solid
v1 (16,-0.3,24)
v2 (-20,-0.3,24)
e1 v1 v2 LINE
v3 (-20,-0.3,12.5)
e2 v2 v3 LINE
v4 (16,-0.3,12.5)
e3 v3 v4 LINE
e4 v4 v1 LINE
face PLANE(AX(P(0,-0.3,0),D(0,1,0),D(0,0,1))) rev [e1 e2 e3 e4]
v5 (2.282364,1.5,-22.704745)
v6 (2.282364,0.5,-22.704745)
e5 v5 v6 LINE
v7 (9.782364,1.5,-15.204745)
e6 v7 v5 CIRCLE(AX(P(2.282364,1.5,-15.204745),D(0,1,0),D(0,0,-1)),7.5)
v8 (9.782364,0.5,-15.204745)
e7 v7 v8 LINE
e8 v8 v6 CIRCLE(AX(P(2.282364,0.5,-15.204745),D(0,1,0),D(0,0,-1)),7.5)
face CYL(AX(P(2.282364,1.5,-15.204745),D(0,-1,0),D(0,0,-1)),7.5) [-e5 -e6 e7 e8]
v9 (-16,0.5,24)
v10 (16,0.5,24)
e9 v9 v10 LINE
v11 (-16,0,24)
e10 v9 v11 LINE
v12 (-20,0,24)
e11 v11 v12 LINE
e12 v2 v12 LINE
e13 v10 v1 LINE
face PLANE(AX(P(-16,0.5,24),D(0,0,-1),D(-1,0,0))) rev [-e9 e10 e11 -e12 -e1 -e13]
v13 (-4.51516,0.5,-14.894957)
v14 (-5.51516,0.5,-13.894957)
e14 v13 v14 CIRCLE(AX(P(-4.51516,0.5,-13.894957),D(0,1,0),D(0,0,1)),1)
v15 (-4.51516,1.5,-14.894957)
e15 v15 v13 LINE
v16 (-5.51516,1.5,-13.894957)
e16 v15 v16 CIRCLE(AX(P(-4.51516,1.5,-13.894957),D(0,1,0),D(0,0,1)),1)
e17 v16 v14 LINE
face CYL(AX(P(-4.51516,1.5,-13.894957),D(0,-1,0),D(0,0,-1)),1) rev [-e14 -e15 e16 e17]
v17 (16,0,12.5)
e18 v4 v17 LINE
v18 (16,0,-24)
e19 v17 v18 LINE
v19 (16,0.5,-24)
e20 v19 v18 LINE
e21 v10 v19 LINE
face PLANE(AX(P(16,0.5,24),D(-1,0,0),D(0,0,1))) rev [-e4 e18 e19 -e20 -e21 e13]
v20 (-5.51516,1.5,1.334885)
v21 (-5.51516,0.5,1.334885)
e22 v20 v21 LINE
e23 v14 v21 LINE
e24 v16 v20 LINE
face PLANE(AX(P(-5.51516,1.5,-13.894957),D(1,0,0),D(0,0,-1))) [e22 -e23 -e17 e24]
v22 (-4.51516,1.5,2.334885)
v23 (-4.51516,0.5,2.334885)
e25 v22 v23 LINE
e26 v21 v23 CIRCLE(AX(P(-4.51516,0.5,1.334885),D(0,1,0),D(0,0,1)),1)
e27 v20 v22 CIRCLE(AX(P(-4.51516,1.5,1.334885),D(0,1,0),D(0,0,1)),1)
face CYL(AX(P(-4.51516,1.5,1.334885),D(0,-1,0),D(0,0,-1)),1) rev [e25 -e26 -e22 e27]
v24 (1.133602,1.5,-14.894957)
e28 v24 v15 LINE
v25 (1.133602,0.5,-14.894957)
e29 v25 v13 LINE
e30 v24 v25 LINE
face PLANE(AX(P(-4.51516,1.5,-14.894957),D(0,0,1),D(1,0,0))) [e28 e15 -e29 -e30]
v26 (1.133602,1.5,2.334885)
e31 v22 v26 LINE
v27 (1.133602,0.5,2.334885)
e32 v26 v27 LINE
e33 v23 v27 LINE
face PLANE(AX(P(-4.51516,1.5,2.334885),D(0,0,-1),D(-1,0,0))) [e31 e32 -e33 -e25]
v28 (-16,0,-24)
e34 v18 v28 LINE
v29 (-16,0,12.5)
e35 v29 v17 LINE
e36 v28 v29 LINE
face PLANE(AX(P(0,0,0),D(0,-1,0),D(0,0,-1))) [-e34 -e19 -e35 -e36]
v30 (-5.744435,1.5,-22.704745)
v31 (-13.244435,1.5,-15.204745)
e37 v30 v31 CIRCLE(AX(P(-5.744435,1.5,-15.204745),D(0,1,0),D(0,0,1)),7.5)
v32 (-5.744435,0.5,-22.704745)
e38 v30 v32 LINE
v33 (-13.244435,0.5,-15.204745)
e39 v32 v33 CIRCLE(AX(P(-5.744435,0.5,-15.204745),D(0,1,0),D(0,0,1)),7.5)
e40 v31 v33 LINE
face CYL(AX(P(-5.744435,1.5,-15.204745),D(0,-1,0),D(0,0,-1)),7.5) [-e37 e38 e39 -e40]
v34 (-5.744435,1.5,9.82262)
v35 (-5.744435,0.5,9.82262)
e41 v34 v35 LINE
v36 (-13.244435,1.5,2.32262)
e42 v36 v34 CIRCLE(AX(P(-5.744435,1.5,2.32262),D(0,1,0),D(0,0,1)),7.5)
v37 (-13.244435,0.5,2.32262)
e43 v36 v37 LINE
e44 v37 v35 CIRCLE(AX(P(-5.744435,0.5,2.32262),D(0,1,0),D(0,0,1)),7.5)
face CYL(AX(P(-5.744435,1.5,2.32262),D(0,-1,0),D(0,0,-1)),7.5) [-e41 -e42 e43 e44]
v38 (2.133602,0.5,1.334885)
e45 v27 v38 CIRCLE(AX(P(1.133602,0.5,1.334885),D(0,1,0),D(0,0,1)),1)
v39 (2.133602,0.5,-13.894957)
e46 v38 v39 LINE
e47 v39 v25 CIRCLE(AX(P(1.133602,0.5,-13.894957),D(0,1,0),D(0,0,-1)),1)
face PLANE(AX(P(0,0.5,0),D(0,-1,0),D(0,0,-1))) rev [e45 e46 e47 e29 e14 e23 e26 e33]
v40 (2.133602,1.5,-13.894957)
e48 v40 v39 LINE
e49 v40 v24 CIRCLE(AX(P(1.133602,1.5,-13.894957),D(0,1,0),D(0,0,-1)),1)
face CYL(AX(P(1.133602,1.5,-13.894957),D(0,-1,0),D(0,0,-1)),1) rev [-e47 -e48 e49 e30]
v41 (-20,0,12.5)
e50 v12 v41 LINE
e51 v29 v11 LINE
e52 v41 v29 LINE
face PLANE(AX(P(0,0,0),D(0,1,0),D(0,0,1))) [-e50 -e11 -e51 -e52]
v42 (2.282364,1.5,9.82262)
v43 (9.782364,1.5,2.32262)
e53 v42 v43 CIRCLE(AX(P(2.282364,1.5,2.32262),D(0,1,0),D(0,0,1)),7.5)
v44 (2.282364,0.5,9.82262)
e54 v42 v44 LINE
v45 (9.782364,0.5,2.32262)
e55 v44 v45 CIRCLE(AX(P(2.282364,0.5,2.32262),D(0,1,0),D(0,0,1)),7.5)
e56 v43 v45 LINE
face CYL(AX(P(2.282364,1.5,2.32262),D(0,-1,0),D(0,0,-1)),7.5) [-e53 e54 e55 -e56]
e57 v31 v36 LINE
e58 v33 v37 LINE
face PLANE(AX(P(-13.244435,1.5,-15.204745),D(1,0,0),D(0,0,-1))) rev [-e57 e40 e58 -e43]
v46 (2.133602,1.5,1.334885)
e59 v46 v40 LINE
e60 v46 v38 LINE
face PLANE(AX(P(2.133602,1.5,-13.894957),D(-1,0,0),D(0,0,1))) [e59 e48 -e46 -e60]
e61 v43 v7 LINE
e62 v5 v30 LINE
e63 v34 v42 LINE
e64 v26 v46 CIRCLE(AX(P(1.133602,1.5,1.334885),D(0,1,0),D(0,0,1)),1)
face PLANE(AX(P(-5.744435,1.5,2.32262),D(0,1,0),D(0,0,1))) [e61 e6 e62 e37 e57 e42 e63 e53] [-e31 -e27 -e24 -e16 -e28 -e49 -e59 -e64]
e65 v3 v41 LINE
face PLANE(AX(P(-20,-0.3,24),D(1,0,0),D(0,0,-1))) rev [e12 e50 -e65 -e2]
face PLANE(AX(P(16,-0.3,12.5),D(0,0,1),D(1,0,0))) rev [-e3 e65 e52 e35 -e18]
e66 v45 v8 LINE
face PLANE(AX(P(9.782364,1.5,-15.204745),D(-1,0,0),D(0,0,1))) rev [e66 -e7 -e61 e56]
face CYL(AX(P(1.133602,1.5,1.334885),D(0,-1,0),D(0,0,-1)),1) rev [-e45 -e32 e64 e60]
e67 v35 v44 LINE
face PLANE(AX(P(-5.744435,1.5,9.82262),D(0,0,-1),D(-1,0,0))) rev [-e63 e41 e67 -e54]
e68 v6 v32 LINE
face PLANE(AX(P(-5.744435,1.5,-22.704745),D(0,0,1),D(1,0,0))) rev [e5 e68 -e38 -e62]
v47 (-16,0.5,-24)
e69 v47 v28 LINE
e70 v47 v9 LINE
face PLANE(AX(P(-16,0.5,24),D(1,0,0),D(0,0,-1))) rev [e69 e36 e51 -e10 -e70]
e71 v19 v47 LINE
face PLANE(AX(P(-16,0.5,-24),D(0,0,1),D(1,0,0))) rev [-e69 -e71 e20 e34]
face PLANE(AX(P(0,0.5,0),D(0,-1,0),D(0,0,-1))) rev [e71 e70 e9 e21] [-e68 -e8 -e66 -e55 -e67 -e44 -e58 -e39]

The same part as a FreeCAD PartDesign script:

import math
import FreeCAD as App
import Part
import Sketcher
Q = App.Units.Quantity

doc = App.newDocument("Part")
params = doc.addObject("Spreadsheet::Sheet", "Params")
for row, (alias, value) in enumerate([
    ("sketch1_width", "32 mm"),
    ("sketch1_height", "48 mm"),
    ("pad1_length", "0.5 mm"),
    ("sketch2_radius", "1 mm"),
    ("sketch2_radius2", "7.5 mm"),
    ("pad2_length", "1 mm"),
    ("sketch3_width", "36 mm"),
    ("sketch3_height", "11.5 mm"),
    ("pad3_length", "0.3 mm"),
], start=1):
    params.set(f"A{row}", alias)
    params.set(f"B{row}", "=" + value)
    params.setAlias(f"B{row}", alias)

body = doc.addObject("PartDesign::Body", "Body")

sketch1 = doc.addObject("Sketcher::SketchObject", "Sketch")
body.addObject(sketch1)
sketch1.AttachmentSupport = (doc.XZ_Plane, [""])
sketch1.MapMode = "FlatFace"
sketch1.addGeometry(Part.LineSegment(App.Vector(-16, -24, 0), App.Vector(-16, 24, 0)), False)
sketch1.addGeometry(Part.LineSegment(App.Vector(-16, 24, 0), App.Vector(16, 24, 0)), False)
sketch1.addGeometry(Part.LineSegment(App.Vector(16, 24, 0), App.Vector(16, -24, 0)), False)
sketch1.addGeometry(Part.LineSegment(App.Vector(16, -24, 0), App.Vector(-16, -24, 0)), False)
sketch1.addConstraint(Sketcher.Constraint("Coincident", 0, 2, 1, 1))
sketch1.addConstraint(Sketcher.Constraint("Coincident", 1, 2, 2, 1))
sketch1.addConstraint(Sketcher.Constraint("Coincident", 2, 2, 3, 1))
sketch1.addConstraint(Sketcher.Constraint("Coincident", 3, 2, 0, 1))
sketch1.addConstraint(Sketcher.Constraint("Vertical", 0))
sketch1.addConstraint(Sketcher.Constraint("Horizontal", 1))
sketch1.addConstraint(Sketcher.Constraint("Vertical", 2))
sketch1.addConstraint(Sketcher.Constraint("Horizontal", 3))
sketch1.addConstraint(Sketcher.Constraint("Symmetric", 0, 2, 2, 2, -1, 1))
sketch1.addConstraint(Sketcher.Constraint("DistanceX", 1, 1, 1, 2, Q("32 mm")))
sketch1.addConstraint(Sketcher.Constraint("DistanceY", 0, 1, 0, 2, Q("48 mm")))
sketch1.setExpression("Constraints[9]", "Params.sketch1_width")
sketch1.setExpression("Constraints[10]", "Params.sketch1_height")
pad1 = doc.addObject("PartDesign::Pad", "Pad")
body.addObject(pad1)
pad1.Profile = sketch1
pad1.setExpression("Length", "Params.pad1_length")
pad1.Reversed = True

sketch2 = doc.addObject("Sketcher::SketchObject", "Sketch001")
body.addObject(sketch2)
sketch2.AttachmentSupport = (doc.XZ_Plane, [""])
sketch2.MapMode = "FlatFace"
sketch2.AttachmentOffset = App.Placement(App.Vector(0, 0, -0.5), App.Rotation())
sketch2.addGeometry(Part.LineSegment(App.Vector(2.3, -22.7, 0), App.Vector(-5.7, -22.7, 0)), False)
sketch2.addGeometry(Part.ArcOfCircle(Part.Circle(App.Vector(-5.7, -15.2, 0), App.Vector(0, 0, 1), 7.5), math.radians(-180), math.radians(-90)), False)
sketch2.addGeometry(Part.LineSegment(App.Vector(-13.2, -15.2, 0), App.Vector(-13.2, 2.3, 0)), False)
sketch2.addGeometry(Part.ArcOfCircle(Part.Circle(App.Vector(-5.7, 2.3, 0), App.Vector(0, 0, 1), 7.5), math.radians(90), math.radians(180)), False)
sketch2.addGeometry(Part.LineSegment(App.Vector(-5.7, 9.8, 0), App.Vector(2.3, 9.8, 0)), False)
sketch2.addGeometry(Part.ArcOfCircle(Part.Circle(App.Vector(2.3, 2.3, 0), App.Vector(0, 0, 1), 7.5), math.radians(0), math.radians(90)), False)
sketch2.addGeometry(Part.LineSegment(App.Vector(9.8, 2.3, 0), App.Vector(9.8, -15.2, 0)), False)
sketch2.addGeometry(Part.ArcOfCircle(Part.Circle(App.Vector(2.3, -15.2, 0), App.Vector(0, 0, 1), 7.5), math.radians(-90), math.radians(0)), False)
sketch2.addGeometry(Part.LineSegment(App.Vector(-4.5, -14.9, 0), App.Vector(1.1, -14.9, 0)), False)
sketch2.addGeometry(Part.ArcOfCircle(Part.Circle(App.Vector(1.1, -13.9, 0), App.Vector(0, 0, 1), 1), math.radians(-90), math.radians(0)), False)
sketch2.addGeometry(Part.LineSegment(App.Vector(2.1, -13.9, 0), App.Vector(2.1, 1.3, 0)), False)
sketch2.addGeometry(Part.ArcOfCircle(Part.Circle(App.Vector(1.1, 1.3, 0), App.Vector(0, 0, 1), 1), math.radians(0), math.radians(90)), False)
sketch2.addGeometry(Part.LineSegment(App.Vector(1.1, 2.3, 0), App.Vector(-4.5, 2.3, 0)), False)
sketch2.addGeometry(Part.ArcOfCircle(Part.Circle(App.Vector(-4.5, 1.3, 0), App.Vector(0, 0, 1), 1), math.radians(90), math.radians(180)), False)
sketch2.addGeometry(Part.LineSegment(App.Vector(-5.5, 1.3, 0), App.Vector(-5.5, -13.9, 0)), False)
sketch2.addGeometry(Part.ArcOfCircle(Part.Circle(App.Vector(-4.5, -13.9, 0), App.Vector(0, 0, 1), 1), math.radians(-180), math.radians(-90)), False)
sketch2.addConstraint(Sketcher.Constraint("Tangent", 0, 2, 1, 2))
sketch2.addConstraint(Sketcher.Constraint("Tangent", 1, 1, 2, 1))
sketch2.addConstraint(Sketcher.Constraint("Tangent", 2, 2, 3, 2))
sketch2.addConstraint(Sketcher.Constraint("Tangent", 3, 1, 4, 1))
sketch2.addConstraint(Sketcher.Constraint("Tangent", 4, 2, 5, 2))
sketch2.addConstraint(Sketcher.Constraint("Tangent", 5, 1, 6, 1))
sketch2.addConstraint(Sketcher.Constraint("Tangent", 6, 2, 7, 2))
sketch2.addConstraint(Sketcher.Constraint("Tangent", 7, 1, 0, 1))
sketch2.addConstraint(Sketcher.Constraint("Tangent", 8, 2, 9, 1))
sketch2.addConstraint(Sketcher.Constraint("Tangent", 9, 2, 10, 1))
sketch2.addConstraint(Sketcher.Constraint("Tangent", 10, 2, 11, 1))
sketch2.addConstraint(Sketcher.Constraint("Tangent", 11, 2, 12, 1))
sketch2.addConstraint(Sketcher.Constraint("Tangent", 12, 2, 13, 1))
sketch2.addConstraint(Sketcher.Constraint("Tangent", 13, 2, 14, 1))
sketch2.addConstraint(Sketcher.Constraint("Tangent", 14, 2, 15, 1))
sketch2.addConstraint(Sketcher.Constraint("Tangent", 15, 2, 8, 1))
sketch2.addConstraint(Sketcher.Constraint("Horizontal", 0))
sketch2.addConstraint(Sketcher.Constraint("Vertical", 2))
sketch2.addConstraint(Sketcher.Constraint("Horizontal", 4))
sketch2.addConstraint(Sketcher.Constraint("Vertical", 6))
sketch2.addConstraint(Sketcher.Constraint("Horizontal", 8))
sketch2.addConstraint(Sketcher.Constraint("Vertical", 10))
sketch2.addConstraint(Sketcher.Constraint("Horizontal", 12))
sketch2.addConstraint(Sketcher.Constraint("Vertical", 14))
sketch2.addConstraint(Sketcher.Constraint("Equal", 1, 3))
sketch2.addConstraint(Sketcher.Constraint("Equal", 3, 5))
sketch2.addConstraint(Sketcher.Constraint("Equal", 5, 7))
sketch2.addConstraint(Sketcher.Constraint("Equal", 9, 11))
sketch2.addConstraint(Sketcher.Constraint("Equal", 11, 13))
sketch2.addConstraint(Sketcher.Constraint("Equal", 13, 15))
sketch2.addConstraint(Sketcher.Constraint("Radius", 9, Q("1 mm")))
sketch2.addConstraint(Sketcher.Constraint("Radius", 1, Q("7.5 mm")))
sketch2.addConstraint(Sketcher.Constraint("DistanceX", 0, 2, 0, 1, Q("8.026798 mm")))
sketch2.addConstraint(Sketcher.Constraint("DistanceX", 8, 1, 8, 2, Q("5.648762 mm")))
sketch2.addConstraint(Sketcher.Constraint("DistanceY", 10, 1, 10, 2, Q("15.229842 mm")))
sketch2.addConstraint(Sketcher.Constraint("DistanceX", -1, 1, 9, 3, Q("1.133602 mm")))
sketch2.addConstraint(Sketcher.Constraint("DistanceY", 2, 1, 2, 2, Q("17.527365 mm")))
sketch2.addConstraint(Sketcher.Constraint("DistanceY", -1, 1, 3, 3, Q("2.32262 mm")))
sketch2.addConstraint(Sketcher.Constraint("DistanceX", 9, 3, 7, 3, Q("1.148762 mm")))
sketch2.addConstraint(Sketcher.Constraint("DistanceY", 7, 3, 9, 3, Q("1.309788 mm")))
sketch2.setExpression("Constraints[30]", "Params.sketch2_radius")
sketch2.setExpression("Constraints[31]", "Params.sketch2_radius2")
pad2 = doc.addObject("PartDesign::Pad", "Pad001")
body.addObject(pad2)
pad2.Profile = sketch2
pad2.setExpression("Length", "Params.pad2_length")
pad2.Reversed = True

sketch3 = doc.addObject("Sketcher::SketchObject", "Sketch002")
body.addObject(sketch3)
sketch3.AttachmentSupport = (doc.XZ_Plane, [""])
sketch3.MapMode = "FlatFace"
sketch3.addGeometry(Part.LineSegment(App.Vector(-20, 24, 0), App.Vector(-20, 12, 0)), False)
sketch3.addGeometry(Part.LineSegment(App.Vector(-20, 12, 0), App.Vector(16, 12, 0)), False)
sketch3.addGeometry(Part.LineSegment(App.Vector(16, 12, 0), App.Vector(16, 24, 0)), False)
sketch3.addGeometry(Part.LineSegment(App.Vector(16, 24, 0), App.Vector(-20, 24, 0)), False)
sketch3.addConstraint(Sketcher.Constraint("Coincident", 0, 2, 1, 1))
sketch3.addConstraint(Sketcher.Constraint("Coincident", 1, 2, 2, 1))
sketch3.addConstraint(Sketcher.Constraint("Coincident", 2, 2, 3, 1))
sketch3.addConstraint(Sketcher.Constraint("Coincident", 3, 2, 0, 1))
sketch3.addConstraint(Sketcher.Constraint("Vertical", 0))
sketch3.addConstraint(Sketcher.Constraint("Horizontal", 1))
sketch3.addConstraint(Sketcher.Constraint("Vertical", 2))
sketch3.addConstraint(Sketcher.Constraint("Horizontal", 3))
sketch3.addConstraint(Sketcher.Constraint("DistanceX", 1, 1, 1, 2, Q("36 mm")))
sketch3.addConstraint(Sketcher.Constraint("DistanceY", 0, 2, 0, 1, Q("11.5 mm")))
sketch3.addConstraint(Sketcher.Constraint("DistanceX", 0, 2, -1, 1, Q("20 mm")))
sketch3.addConstraint(Sketcher.Constraint("DistanceY", -1, 1, 2, 2, Q("24 mm")))
sketch3.setExpression("Constraints[8]", "Params.sketch3_width")
sketch3.setExpression("Constraints[9]", "Params.sketch3_height")
pad3 = doc.addObject("PartDesign::Pad", "Pad002")
body.addObject(pad3)
pad3.Profile = sketch3
pad3.setExpression("Length", "Params.pad3_length")

doc.recompute()
